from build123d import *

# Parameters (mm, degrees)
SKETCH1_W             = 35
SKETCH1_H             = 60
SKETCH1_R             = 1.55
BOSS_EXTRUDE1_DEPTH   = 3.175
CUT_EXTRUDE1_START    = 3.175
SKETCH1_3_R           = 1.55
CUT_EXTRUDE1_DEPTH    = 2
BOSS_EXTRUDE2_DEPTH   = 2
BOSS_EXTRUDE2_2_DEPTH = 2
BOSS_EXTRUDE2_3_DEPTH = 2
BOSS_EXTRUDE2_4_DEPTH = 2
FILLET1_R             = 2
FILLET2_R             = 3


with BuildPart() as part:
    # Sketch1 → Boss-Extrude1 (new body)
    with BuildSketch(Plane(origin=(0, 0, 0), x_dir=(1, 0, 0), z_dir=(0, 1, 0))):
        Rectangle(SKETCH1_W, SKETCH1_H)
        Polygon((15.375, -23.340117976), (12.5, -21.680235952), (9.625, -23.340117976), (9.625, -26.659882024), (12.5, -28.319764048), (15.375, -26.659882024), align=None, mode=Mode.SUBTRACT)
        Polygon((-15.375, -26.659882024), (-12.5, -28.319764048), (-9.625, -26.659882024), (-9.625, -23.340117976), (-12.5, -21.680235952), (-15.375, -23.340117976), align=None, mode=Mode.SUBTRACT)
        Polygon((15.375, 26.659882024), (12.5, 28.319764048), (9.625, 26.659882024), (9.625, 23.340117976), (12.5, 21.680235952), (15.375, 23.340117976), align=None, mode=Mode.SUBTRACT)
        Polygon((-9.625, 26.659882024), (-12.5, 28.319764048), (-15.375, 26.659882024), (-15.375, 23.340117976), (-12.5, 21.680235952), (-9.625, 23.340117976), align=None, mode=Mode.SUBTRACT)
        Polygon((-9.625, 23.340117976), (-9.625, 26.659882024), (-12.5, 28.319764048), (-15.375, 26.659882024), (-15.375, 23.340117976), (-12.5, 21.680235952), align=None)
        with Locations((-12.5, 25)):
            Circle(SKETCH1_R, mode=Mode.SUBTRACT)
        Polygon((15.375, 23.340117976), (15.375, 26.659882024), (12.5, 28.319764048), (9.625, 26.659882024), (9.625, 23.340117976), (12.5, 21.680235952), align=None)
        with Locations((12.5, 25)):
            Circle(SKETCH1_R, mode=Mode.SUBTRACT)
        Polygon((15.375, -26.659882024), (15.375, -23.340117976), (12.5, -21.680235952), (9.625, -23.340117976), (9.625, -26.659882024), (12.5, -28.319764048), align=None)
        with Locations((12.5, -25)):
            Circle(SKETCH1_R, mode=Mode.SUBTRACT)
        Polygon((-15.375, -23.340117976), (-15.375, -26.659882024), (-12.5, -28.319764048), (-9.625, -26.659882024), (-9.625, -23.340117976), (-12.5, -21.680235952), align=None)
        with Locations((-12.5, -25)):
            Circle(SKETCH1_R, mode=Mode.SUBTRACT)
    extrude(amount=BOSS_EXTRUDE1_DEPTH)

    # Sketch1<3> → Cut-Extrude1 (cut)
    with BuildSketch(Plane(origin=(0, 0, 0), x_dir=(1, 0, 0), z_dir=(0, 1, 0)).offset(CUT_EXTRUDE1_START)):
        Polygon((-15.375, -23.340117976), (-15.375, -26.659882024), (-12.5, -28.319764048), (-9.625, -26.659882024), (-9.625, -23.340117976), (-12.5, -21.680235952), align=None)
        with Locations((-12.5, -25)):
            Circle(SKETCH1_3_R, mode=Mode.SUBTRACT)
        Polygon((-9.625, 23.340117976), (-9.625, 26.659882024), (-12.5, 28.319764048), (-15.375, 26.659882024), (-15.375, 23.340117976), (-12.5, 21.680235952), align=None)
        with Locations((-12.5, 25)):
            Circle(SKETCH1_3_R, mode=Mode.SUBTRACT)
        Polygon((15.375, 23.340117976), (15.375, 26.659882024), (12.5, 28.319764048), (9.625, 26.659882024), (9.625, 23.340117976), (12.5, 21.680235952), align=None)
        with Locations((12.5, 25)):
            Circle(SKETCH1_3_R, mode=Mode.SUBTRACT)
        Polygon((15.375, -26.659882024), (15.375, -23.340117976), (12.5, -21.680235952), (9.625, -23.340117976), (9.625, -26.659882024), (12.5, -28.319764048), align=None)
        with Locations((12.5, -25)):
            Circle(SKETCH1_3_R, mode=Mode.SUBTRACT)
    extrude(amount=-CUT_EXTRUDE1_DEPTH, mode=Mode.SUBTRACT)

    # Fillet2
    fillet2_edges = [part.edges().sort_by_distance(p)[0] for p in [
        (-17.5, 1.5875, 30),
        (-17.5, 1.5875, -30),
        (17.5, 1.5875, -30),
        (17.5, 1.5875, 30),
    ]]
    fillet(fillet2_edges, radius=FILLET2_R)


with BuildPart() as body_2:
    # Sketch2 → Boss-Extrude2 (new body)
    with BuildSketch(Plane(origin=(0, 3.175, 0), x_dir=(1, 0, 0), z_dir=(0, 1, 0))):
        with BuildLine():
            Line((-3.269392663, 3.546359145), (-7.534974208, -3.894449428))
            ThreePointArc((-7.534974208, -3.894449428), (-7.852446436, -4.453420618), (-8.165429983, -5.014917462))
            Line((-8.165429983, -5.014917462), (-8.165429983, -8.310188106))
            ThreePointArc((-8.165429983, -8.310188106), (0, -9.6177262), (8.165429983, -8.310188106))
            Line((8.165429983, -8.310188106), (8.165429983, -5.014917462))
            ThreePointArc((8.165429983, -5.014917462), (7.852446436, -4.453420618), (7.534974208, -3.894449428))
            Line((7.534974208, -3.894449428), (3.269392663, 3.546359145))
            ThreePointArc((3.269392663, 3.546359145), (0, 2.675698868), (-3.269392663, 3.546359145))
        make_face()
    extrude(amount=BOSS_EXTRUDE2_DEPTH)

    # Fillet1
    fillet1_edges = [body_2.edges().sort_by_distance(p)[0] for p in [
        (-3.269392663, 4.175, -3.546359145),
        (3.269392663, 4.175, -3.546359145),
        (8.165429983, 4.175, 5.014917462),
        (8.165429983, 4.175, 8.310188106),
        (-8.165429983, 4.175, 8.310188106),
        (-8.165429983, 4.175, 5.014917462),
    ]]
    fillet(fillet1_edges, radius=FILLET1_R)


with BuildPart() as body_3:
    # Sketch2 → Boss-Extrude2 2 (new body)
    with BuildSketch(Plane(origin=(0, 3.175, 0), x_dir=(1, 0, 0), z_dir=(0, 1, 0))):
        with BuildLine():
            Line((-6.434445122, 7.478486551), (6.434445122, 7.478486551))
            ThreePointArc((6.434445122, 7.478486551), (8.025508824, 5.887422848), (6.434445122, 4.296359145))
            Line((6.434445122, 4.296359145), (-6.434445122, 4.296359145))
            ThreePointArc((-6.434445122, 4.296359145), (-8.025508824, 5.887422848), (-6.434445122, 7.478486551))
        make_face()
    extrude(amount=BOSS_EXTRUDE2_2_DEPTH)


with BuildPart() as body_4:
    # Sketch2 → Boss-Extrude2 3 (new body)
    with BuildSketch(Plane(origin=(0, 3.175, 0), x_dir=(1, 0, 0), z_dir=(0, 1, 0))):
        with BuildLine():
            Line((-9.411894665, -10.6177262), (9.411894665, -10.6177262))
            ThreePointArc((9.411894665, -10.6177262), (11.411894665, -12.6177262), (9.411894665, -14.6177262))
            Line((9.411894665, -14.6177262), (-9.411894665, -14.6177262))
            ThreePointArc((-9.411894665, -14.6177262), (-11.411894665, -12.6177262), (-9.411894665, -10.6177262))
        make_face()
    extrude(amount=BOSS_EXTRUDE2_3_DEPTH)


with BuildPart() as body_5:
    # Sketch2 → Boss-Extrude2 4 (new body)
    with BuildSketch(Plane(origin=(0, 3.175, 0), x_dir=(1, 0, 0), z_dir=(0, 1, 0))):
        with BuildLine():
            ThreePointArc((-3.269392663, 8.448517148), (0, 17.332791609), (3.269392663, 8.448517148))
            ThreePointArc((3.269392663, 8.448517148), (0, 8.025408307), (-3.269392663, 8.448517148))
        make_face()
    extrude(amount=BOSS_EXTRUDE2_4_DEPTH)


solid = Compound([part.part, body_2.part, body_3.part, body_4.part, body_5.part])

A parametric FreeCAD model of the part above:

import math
import FreeCAD as App
import Part
import Sketcher

V = App.Vector
Q = App.Units.Quantity


def edges_at(feature, points):
    """Names of the edges that pass closest to the given points."""
    edges = feature.Shape.Edges
    near = lambda p: min(range(len(edges)), key=lambda i: edges[i].distToShape(Part.Vertex(*p))[0])
    return sorted({f"Edge{near(p) + 1}" for p in points})

doc = App.newDocument("Part")
body = doc.addObject("PartDesign::Body", "Body")

# Sketch on XZ plane
sketch1 = doc.addObject("Sketcher::SketchObject", "Sketch")
body.addObject(sketch1)
sketch1.AttachmentSupport = (doc.XZ_Plane, [""])
sketch1.MapMode = "FlatFace"
sketch1.addGeometry([
    Part.LineSegment(V(-17.5, -30, 0), V(-17.5, 30, 0)),  # 0
    Part.LineSegment(V(-17.5, 30, 0), V(17.5, 30, 0)),  # 1
    Part.LineSegment(V(17.5, 30, 0), V(17.5, -30, 0)),  # 2
    Part.LineSegment(V(17.5, -30, 0), V(-17.5, -30, 0)),  # 3
    Part.Circle(V(-12.5, 25, 0), V(0, 0, 1), 1.6),  # 4
    Part.Circle(V(12.5, 25, 0), V(0, 0, 1), 1.6),  # 5
    Part.Circle(V(-12.5, -25, 0), V(0, 0, 1), 1.6),  # 6
    Part.Circle(V(12.5, -25, 0), V(0, 0, 1), 1.6),  # 7
], False)
sketch1.addConstraint([
    Sketcher.Constraint("Coincident", 0, 2, 1, 1),
    Sketcher.Constraint("Coincident", 1, 2, 2, 1),
    Sketcher.Constraint("Coincident", 2, 2, 3, 1),
    Sketcher.Constraint("Coincident", 3, 2, 0, 1),
    Sketcher.Constraint("Vertical", 0),
    Sketcher.Constraint("Horizontal", 1),
    Sketcher.Constraint("Vertical", 2),
    Sketcher.Constraint("Horizontal", 3),
    Sketcher.Constraint("Equal", 4, 5),
    Sketcher.Constraint("Equal", 5, 6),
    Sketcher.Constraint("Equal", 6, 7),
    Sketcher.Constraint("Symmetric", 5, 3, 6, 3, -1, 1),
    Sketcher.Constraint("Symmetric", 4, 3, 7, 3, -1, 1),
    Sketcher.Constraint("Symmetric", 0, 2, 2, 2, -1, 1),
    Sketcher.Constraint("Symmetric", 4, 3, 5, 3, -2),
    Sketcher.Constraint("Diameter", 4, 3.1),
    Sketcher.Constraint("DistanceX", 1, 1, 1, 2, 35.0),
    Sketcher.Constraint("DistanceY", 0, 1, 0, 2, 60.0),
    Sketcher.Constraint("DistanceY", -1, 1, 4, 3, 25.0),
    Sketcher.Constraint("DistanceX", 4, 3, 5, 3, 25.0),
])
pad1 = doc.addObject("PartDesign::Pad", "Pad")
body.addObject(pad1)
pad1.Profile = sketch1
pad1.Length = 3.175
pad1.Reversed = True

# Sketch on XZ plane
sketch2 = doc.addObject("Sketcher::SketchObject", "Sketch001")
body.addObject(sketch2)
sketch2.AttachmentSupport = (doc.XZ_Plane, [""])
sketch2.MapMode = "FlatFace"
sketch2.AttachmentOffset = App.Placement(V(0, 0, -3.175), App.Rotation())
sketch2.addGeometry([
    Part.LineSegment(V(-15.4, 23.3, 0), V(-15.4, 26.7, 0)),  # 0
    Part.LineSegment(V(-15.4, 26.7, 0), V(-12.5, 28.3, 0)),  # 1
    Part.LineSegment(V(-12.5, 28.3, 0), V(-9.6, 26.7, 0)),  # 2
    Part.LineSegment(V(-9.6, 26.7, 0), V(-9.6, 23.3, 0)),  # 3
    Part.LineSegment(V(-9.6, 23.3, 0), V(-12.5, 21.7, 0)),  # 4
    Part.LineSegment(V(-12.5, 21.7, 0), V(-15.4, 23.3, 0)),  # 5
    Part.Circle(V(-12.5, 25, 0), V(0, 0, 1), 1.6),  # 6
    Part.LineSegment(V(-9.6, -23.3, 0), V(-9.6, -26.7, 0)),  # 7
    Part.LineSegment(V(-9.6, -26.7, 0), V(-12.5, -28.3, 0)),  # 8
    Part.LineSegment(V(-12.5, -28.3, 0), V(-15.4, -26.7, 0)),  # 9
    Part.LineSegment(V(-15.4, -26.7, 0), V(-15.4, -23.3, 0)),  # 10
    Part.LineSegment(V(-15.4, -23.3, 0), V(-12.5, -21.7, 0)),  # 11
    Part.LineSegment(V(-12.5, -21.7, 0), V(-9.6, -23.3, 0)),  # 12
    Part.Circle(V(-12.5, -25, 0), V(0, 0, 1), 1.6),  # 13
    Part.LineSegment(V(15.4, -23.3, 0), V(15.4, -26.7, 0)),  # 14
    Part.LineSegment(V(15.4, -26.7, 0), V(12.5, -28.3, 0)),  # 15
    Part.LineSegment(V(12.5, -28.3, 0), V(9.6, -26.7, 0)),  # 16
    Part.LineSegment(V(9.6, -26.7, 0), V(9.6, -23.3, 0)),  # 17
    Part.LineSegment(V(9.6, -23.3, 0), V(12.5, -21.7, 0)),  # 18
    Part.LineSegment(V(12.5, -21.7, 0), V(15.4, -23.3, 0)),  # 19
    Part.Circle(V(12.5, -25, 0), V(0, 0, 1), 1.6),  # 20
    Part.LineSegment(V(15.4, 26.7, 0), V(15.4, 23.3, 0)),  # 21
    Part.LineSegment(V(15.4, 23.3, 0), V(12.5, 21.7, 0)),  # 22
    Part.LineSegment(V(12.5, 21.7, 0), V(9.6, 23.3, 0)),  # 23
    Part.LineSegment(V(9.6, 23.3, 0), V(9.6, 26.7, 0)),  # 24
    Part.LineSegment(V(9.6, 26.7, 0), V(12.5, 28.3, 0)),  # 25
    Part.LineSegment(V(12.5, 28.3, 0), V(15.4, 26.7, 0)),  # 26
    Part.Circle(V(12.5, 25, 0), V(0, 0, 1), 1.6),  # 27
], False)
sketch2.addConstraint([
    Sketcher.Constraint("Coincident", 0, 2, 1, 1),
    Sketcher.Constraint("Coincident", 1, 2, 2, 1),
    Sketcher.Constraint("Coincident", 2, 2, 3, 1),
    Sketcher.Constraint("Coincident", 3, 2, 4, 1),
    Sketcher.Constraint("Coincident", 4, 2, 5, 1),
    Sketcher.Constraint("Coincident", 5, 2, 0, 1),
    Sketcher.Constraint("Coincident", 7, 2, 8, 1),
    Sketcher.Constraint("Coincident", 8, 2, 9, 1),
    Sketcher.Constraint("Coincident", 9, 2, 10, 1),
    Sketcher.Constraint("Coincident", 10, 2, 11, 1),
    Sketcher.Constraint("Coincident", 11, 2, 12, 1),
    Sketcher.Constraint("Coincident", 12, 2, 7, 1),
    Sketcher.Constraint("Coincident", 14, 2, 15, 1),
    Sketcher.Constraint("Coincident", 15, 2, 16, 1),
    Sketcher.Constraint("Coincident", 16, 2, 17, 1),
    Sketcher.Constraint("Coincident", 17, 2, 18, 1),
    Sketcher.Constraint("Coincident", 18, 2, 19, 1),
    Sketcher.Constraint("Coincident", 19, 2, 14, 1),
    Sketcher.Constraint("Coincident", 21, 2, 22, 1),
    Sketcher.Constraint("Coincident", 22, 2, 23, 1),
    Sketcher.Constraint("Coincident", 23, 2, 24, 1),
    Sketcher.Constraint("Coincident", 24, 2, 25, 1),
    Sketcher.Constraint("Coincident", 25, 2, 26, 1),
    Sketcher.Constraint("Coincident", 26, 2, 21, 1),
    Sketcher.Constraint("Vertical", 0),
    Sketcher.Constraint("Vertical", 3),
    Sketcher.Constraint("Vertical", 7),
    Sketcher.Constraint("Vertical", 10),
    Sketcher.Constraint("Vertical", 14),
    Sketcher.Constraint("Vertical", 17),
    Sketcher.Constraint("Vertical", 21),
    Sketcher.Constraint("Vertical", 24),
    Sketcher.Constraint("Equal", 6, 13),
    Sketcher.Constraint("Equal", 13, 20),
    Sketcher.Constraint("Equal", 20, 27),
    Sketcher.Constraint("Symmetric", 6, 3, 20, 3, -1, 1),
    Sketcher.Constraint("Symmetric", 13, 3, 27, 3, -1, 1),
    Sketcher.Constraint("Symmetric", 0, 2, 14, 2, -1, 1),
    Sketcher.Constraint("Symmetric", 1, 2, 15, 2, -1, 1),
    Sketcher.Constraint("Symmetric", 2, 2, 16, 2, -1, 1),
    Sketcher.Constraint("Symmetric", 4, 2, 18, 2, -1, 1),
    Sketcher.Constraint("Symmetric", 10, 2, 21, 2, -1, 1),
    Sketcher.Constraint("Symmetric", 11, 2, 22, 2, -1, 1),
    Sketcher.Constraint("Symmetric", 12, 2, 23, 2, -1, 1),
    Sketcher.Constraint("Symmetric", 8, 2, 25, 2, -1, 1),
    Sketcher.Constraint("Symmetric", 13, 3, 20, 3, -2),
    Sketcher.Constraint("Symmetric", 9, 2, 14, 2, -2),
    Sketcher.Constraint("Symmetric", 8, 2, 15, 2, -2),
    Sketcher.Constraint("Symmetric", 7, 2, 16, 2, -2),
    Sketcher.Constraint("Symmetric", 11, 2, 18, 2, -2),
    Sketcher.Constraint("Parallel", 1, 4),
    Sketcher.Constraint("Parallel", 2, 5),
    Sketcher.Constraint("Parallel", 4, 8),
    Sketcher.Constraint("Parallel", 8, 11),
    Sketcher.Constraint("Parallel", 9, 12),
    Sketcher.Constraint("Parallel", 15, 18),
    Sketcher.Constraint("Parallel", 16, 19),
    Sketcher.Constraint("Parallel", 22, 25),
    Sketcher.Constraint("Parallel", 23, 26),
    Sketcher.Constraint("Horizontal", 0, 2, 2, 2),
    Sketcher.Constraint("Horizontal", 3, 2, 5, 2),
    Sketcher.Constraint("Vertical", 13, 3, 1, 2),
    Sketcher.Constraint("Diameter", 6, 3.1),
    Sketcher.Constraint("Angle", 1, Q("30 deg")),
    Sketcher.Constraint("DistanceY", -1, 1, 6, 3, 25.0),
    Sketcher.Constraint("DistanceX", 13, 3, 20, 3, 25.0),
    Sketcher.Constraint("DistanceY", 7, 2, 3, 2, 50.0),
    Sketcher.Constraint("DistanceX", 0, 2, 2, 2, 5.75),
    Sketcher.Constraint("DistanceY", 0, 1, 0, 2, 3.319764),
])
pocket1 = doc.addObject("PartDesign::Pocket", "Pocket")
body.addObject(pocket1)
pocket1.Profile = sketch2
pocket1.Length = 2
pocket1.Reversed = True
doc.recompute()

fillet = doc.addObject("PartDesign::Fillet", "Fillet")
body.addObject(fillet)
fillet.Base = (pocket1, edges_at(pocket1, [
    (-17.5, 1.587, 30),
    (-17.5, 1.587, -30),
    (17.5, 1.587, -30),
    (17.5, 1.587, 30),
]))
fillet.Radius = 3
body2 = doc.addObject("PartDesign::Body", "Body001")

# Sketch on XZ plane
sketch3 = doc.addObject("Sketcher::SketchObject", "Sketch002")
body2.addObject(sketch3)
sketch3.AttachmentSupport = (doc.getObject("XZ_Plane001"), [""])
sketch3.MapMode = "FlatFace"
sketch3.AttachmentOffset = App.Placement(V(0, 0, -3.175), App.Rotation())
sketch3.addGeometry([
    Part.LineSegment(V(-3.3, -3.5, 0), V(-7.5, 3.9, 0)),  # 0
    Part.ArcOfCircle(Part.Circle(V(62.1, 43.8, 0), V(0, 0, 1), 80.2), math.radians(-151.09), math.radians(-150.18)),  # 1
    Part.LineSegment(V(-8.2, 5, 0), V(-8.2, 8.3, 0)),  # 2
    Part.ArcOfCircle(Part.Circle(V(0, -16.5, 0), V(0, 0, 1), 26.1), math.radians(72), math.radians(108)),  # 3
    Part.LineSegment(V(8.2, 8.3, 0), V(8.2, 5, 0)),  # 4
    Part.ArcOfCircle(Part.Circle(V(-62.1, 43.8, 0), V(0, 0, 1), 80.2), math.radians(-29.82), math.radians(-28.91)),  # 5
    Part.LineSegment(V(7.5, 3.9, 0), V(3.3, -3.5, 0)),  # 6
    Part.ArcOfCircle(Part.Circle(V(0, -9.2, 0), V(0, 0, 1), 6.6), math.radians(60), math.radians(120)),  # 7
], False)
sketch3.addConstraint([
    Sketcher.Constraint("Tangent", 0, 2, 1, 2),
    Sketcher.Constraint("Coincident", 1, 1, 2, 1),
    Sketcher.Constraint("Coincident", 2, 2, 3, 2),
    Sketcher.Constraint("Coincident", 3, 1, 4, 1),
    Sketcher.Constraint("Coincident", 4, 2, 5, 2),
    Sketcher.Constraint("Tangent", 5, 1, 6, 1),
    Sketcher.Constraint("Coincident", 6, 2, 7, 1),
    Sketcher.Constraint("Coincident", 7, 2, 0, 1),
    Sketcher.Constraint("Vertical", 2),
    Sketcher.Constraint("Vertical", 4),
    Sketcher.Constraint("Equal", 1, 5),
    Sketcher.Constraint("Symmetric", 1, 3, 5, 3, -2),
    Sketcher.Constraint("Symmetric", 2, 2, 3, 1, -2),
    Sketcher.Constraint("Symmetric", 6, 2, 7, 2, -2),
    Sketcher.Constraint("Radius", 3, 26.14987),
    Sketcher.Constraint("Radius", 1, 80.233187),
    Sketcher.Constraint("Radius", 7, 6.573734),
    Sketcher.Constraint("DistanceY", 2, 1, 2, 2, 3.295271),
    Sketcher.Constraint("DistanceY", 7, 3, 1, 3, 53.047201),
    Sketcher.Constraint("Distance", 0, 8.57676),
    Sketcher.Constraint("DistanceY", -1, 1, 0, 2, 3.894449),
    Sketcher.Constraint("DistanceX", 1, 1, -1, 1, 8.16543),
    Sketcher.Constraint("DistanceY", -1, 1, 2, 2, 8.310188),
])
pad2 = doc.addObject("PartDesign::Pad", "Pad001")
body2.addObject(pad2)
pad2.Profile = sketch3
pad2.Length = 2
pad2.Reversed = True
doc.recompute()

fillet2 = doc.addObject("PartDesign::Fillet", "Fillet001")
body2.addObject(fillet2)
fillet2.Base = (pad2, edges_at(pad2, [
    (-3.269, 4.175, -3.546),
    (3.269, 4.175, -3.546),
    (8.165, 4.175, 5.015),
    (8.165, 4.175, 8.31),
    (-8.165, 4.175, 8.31),
    (-8.165, 4.175, 5.015),
]))
fillet2.Radius = 2
body3 = doc.addObject("PartDesign::Body", "Body002")

# Sketch on XZ plane
sketch4 = doc.addObject("Sketcher::SketchObject", "Sketch003")
body3.addObject(sketch4)
sketch4.AttachmentSupport = (doc.getObject("XZ_Plane002"), [""])
sketch4.MapMode = "FlatFace"
sketch4.AttachmentOffset = App.Placement(V(0, 0, -3.175), App.Rotation())
sketch4.addGeometry([
    Part.LineSegment(V(6.4, -7.5, 0), V(-6.4, -7.5, 0)),
    Part.ArcOfCircle(Part.Circle(V(-6.4, -5.9, 0), V(0, 0, 1), 1.6), math.radians(90), math.radians(270)),
    Part.LineSegment(V(-6.4, -4.3, 0), V(6.4, -4.3, 0)),
    Part.ArcOfCircle(Part.Circle(V(6.4, -5.9, 0), V(0, 0, 1), 1.6), math.radians(-90), math.radians(90)),
], False)
sketch4.addConstraint([
    Sketcher.Constraint("Tangent", 0, 2, 1, 2),
    Sketcher.Constraint("Tangent", 1, 1, 2, 1),
    Sketcher.Constraint("Tangent", 2, 2, 3, 2),
    Sketcher.Constraint("Tangent", 3, 1, 0, 1),
    Sketcher.Constraint("Horizontal", 0),
    Sketcher.Constraint("Horizontal", 2),
    Sketcher.Constraint("Radius", 1, 1.591064),
    Sketcher.Constraint("DistanceX", 0, 2, 0, 1, 12.86889),
    Sketcher.Constraint("DistanceY", 1, 1, -1, 1, 4.296359),
    Sketcher.Constraint("DistanceX", 1, 3, -1, 1, 6.434445),
])
pad3 = doc.addObject("PartDesign::Pad", "Pad002")
body3.addObject(pad3)
pad3.Profile = sketch4
pad3.Length = 2
pad3.Reversed = True
body4 = doc.addObject("PartDesign::Body", "Body003")

# Sketch on XZ plane
sketch5 = doc.addObject("Sketcher::SketchObject", "Sketch004")
body4.addObject(sketch5)
sketch5.AttachmentSupport = (doc.getObject("XZ_Plane003"), [""])
sketch5.MapMode = "FlatFace"
sketch5.AttachmentOffset = App.Placement(V(0, 0, -3.175), App.Rotation())
sketch5.addGeometry([
    Part.LineSegment(V(9.4, 10.6, 0), V(-9.4, 10.6, 0)),
    Part.ArcOfCircle(Part.Circle(V(-9.4, 12.6, 0), V(0, 0, 1), 2), math.radians(90), math.radians(270)),
    Part.LineSegment(V(-9.4, 14.6, 0), V(9.4, 14.6, 0)),
    Part.ArcOfCircle(Part.Circle(V(9.4, 12.6, 0), V(0, 0, 1), 2), math.radians(-90), math.radians(90)),
], False)
sketch5.addConstraint([
    Sketcher.Constraint("Tangent", 0, 2, 1, 2),
    Sketcher.Constraint("Tangent", 1, 1, 2, 1),
    Sketcher.Constraint("Tangent", 2, 2, 3, 2),
    Sketcher.Constraint("Tangent", 3, 1, 0, 1),
    Sketcher.Constraint("Horizontal", 0),
    Sketcher.Constraint("Horizontal", 2),
    Sketcher.Constraint("Radius", 1, 2.0),
    Sketcher.Constraint("DistanceX", 0, 2, 0, 1, 18.823789),
    Sketcher.Constraint("DistanceX", 1, 3, -1, 1, 9.411895),
    Sketcher.Constraint("DistanceY", -1, 1, 1, 3, 12.617726),
])
pad4 = doc.addObject("PartDesign::Pad", "Pad003")
body4.addObject(pad4)
pad4.Profile = sketch5
pad4.Length = 2
pad4.Reversed = True
body5 = doc.addObject("PartDesign::Body", "Body004")

# Sketch on XZ plane
sketch6 = doc.addObject("Sketcher::SketchObject", "Sketch005")
body5.addObject(sketch6)
sketch6.AttachmentSupport = (doc.getObject("XZ_Plane004"), [""])
sketch6.MapMode = "FlatFace"
sketch6.AttachmentOffset = App.Placement(V(0, 0, -3.175), App.Rotation())
sketch6.addGeometry([
    Part.ArcOfCircle(Part.Circle(V(0, -12, 0), V(0, 0, 1), 5), math.radians(130), math.radians(410)),
    Part.ArcOfCircle(Part.Circle(V(0, -21, 0), V(0, 0, 1), 13), math.radians(75), math.radians(105)),
], False)
sketch6.addConstraint([
    Sketcher.Constraint("Coincident", 0, 1, 1, 2),
    Sketcher.Constraint("Coincident", 1, 1, 0, 2),
    Sketcher.Constraint("Symmetric", 0, 1, 1, 1, -2),
    Sketcher.Constraint("Radius", 0, 5.043702),
    Sketcher.Constraint("Radius", 1, 12.842971),
    Sketcher.Constraint("DistanceY", 0, 3, -1, 1, 12.28909),
    Sketcher.Constraint("DistanceY", 1, 3, -1, 1, 20.86838),
])
pad5 = doc.addObject("PartDesign::Pad", "Pad004")
body5.addObject(pad5)
pad5.Profile = sketch6
pad5.Length = 2
pad5.Reversed = True

doc.recompute()
